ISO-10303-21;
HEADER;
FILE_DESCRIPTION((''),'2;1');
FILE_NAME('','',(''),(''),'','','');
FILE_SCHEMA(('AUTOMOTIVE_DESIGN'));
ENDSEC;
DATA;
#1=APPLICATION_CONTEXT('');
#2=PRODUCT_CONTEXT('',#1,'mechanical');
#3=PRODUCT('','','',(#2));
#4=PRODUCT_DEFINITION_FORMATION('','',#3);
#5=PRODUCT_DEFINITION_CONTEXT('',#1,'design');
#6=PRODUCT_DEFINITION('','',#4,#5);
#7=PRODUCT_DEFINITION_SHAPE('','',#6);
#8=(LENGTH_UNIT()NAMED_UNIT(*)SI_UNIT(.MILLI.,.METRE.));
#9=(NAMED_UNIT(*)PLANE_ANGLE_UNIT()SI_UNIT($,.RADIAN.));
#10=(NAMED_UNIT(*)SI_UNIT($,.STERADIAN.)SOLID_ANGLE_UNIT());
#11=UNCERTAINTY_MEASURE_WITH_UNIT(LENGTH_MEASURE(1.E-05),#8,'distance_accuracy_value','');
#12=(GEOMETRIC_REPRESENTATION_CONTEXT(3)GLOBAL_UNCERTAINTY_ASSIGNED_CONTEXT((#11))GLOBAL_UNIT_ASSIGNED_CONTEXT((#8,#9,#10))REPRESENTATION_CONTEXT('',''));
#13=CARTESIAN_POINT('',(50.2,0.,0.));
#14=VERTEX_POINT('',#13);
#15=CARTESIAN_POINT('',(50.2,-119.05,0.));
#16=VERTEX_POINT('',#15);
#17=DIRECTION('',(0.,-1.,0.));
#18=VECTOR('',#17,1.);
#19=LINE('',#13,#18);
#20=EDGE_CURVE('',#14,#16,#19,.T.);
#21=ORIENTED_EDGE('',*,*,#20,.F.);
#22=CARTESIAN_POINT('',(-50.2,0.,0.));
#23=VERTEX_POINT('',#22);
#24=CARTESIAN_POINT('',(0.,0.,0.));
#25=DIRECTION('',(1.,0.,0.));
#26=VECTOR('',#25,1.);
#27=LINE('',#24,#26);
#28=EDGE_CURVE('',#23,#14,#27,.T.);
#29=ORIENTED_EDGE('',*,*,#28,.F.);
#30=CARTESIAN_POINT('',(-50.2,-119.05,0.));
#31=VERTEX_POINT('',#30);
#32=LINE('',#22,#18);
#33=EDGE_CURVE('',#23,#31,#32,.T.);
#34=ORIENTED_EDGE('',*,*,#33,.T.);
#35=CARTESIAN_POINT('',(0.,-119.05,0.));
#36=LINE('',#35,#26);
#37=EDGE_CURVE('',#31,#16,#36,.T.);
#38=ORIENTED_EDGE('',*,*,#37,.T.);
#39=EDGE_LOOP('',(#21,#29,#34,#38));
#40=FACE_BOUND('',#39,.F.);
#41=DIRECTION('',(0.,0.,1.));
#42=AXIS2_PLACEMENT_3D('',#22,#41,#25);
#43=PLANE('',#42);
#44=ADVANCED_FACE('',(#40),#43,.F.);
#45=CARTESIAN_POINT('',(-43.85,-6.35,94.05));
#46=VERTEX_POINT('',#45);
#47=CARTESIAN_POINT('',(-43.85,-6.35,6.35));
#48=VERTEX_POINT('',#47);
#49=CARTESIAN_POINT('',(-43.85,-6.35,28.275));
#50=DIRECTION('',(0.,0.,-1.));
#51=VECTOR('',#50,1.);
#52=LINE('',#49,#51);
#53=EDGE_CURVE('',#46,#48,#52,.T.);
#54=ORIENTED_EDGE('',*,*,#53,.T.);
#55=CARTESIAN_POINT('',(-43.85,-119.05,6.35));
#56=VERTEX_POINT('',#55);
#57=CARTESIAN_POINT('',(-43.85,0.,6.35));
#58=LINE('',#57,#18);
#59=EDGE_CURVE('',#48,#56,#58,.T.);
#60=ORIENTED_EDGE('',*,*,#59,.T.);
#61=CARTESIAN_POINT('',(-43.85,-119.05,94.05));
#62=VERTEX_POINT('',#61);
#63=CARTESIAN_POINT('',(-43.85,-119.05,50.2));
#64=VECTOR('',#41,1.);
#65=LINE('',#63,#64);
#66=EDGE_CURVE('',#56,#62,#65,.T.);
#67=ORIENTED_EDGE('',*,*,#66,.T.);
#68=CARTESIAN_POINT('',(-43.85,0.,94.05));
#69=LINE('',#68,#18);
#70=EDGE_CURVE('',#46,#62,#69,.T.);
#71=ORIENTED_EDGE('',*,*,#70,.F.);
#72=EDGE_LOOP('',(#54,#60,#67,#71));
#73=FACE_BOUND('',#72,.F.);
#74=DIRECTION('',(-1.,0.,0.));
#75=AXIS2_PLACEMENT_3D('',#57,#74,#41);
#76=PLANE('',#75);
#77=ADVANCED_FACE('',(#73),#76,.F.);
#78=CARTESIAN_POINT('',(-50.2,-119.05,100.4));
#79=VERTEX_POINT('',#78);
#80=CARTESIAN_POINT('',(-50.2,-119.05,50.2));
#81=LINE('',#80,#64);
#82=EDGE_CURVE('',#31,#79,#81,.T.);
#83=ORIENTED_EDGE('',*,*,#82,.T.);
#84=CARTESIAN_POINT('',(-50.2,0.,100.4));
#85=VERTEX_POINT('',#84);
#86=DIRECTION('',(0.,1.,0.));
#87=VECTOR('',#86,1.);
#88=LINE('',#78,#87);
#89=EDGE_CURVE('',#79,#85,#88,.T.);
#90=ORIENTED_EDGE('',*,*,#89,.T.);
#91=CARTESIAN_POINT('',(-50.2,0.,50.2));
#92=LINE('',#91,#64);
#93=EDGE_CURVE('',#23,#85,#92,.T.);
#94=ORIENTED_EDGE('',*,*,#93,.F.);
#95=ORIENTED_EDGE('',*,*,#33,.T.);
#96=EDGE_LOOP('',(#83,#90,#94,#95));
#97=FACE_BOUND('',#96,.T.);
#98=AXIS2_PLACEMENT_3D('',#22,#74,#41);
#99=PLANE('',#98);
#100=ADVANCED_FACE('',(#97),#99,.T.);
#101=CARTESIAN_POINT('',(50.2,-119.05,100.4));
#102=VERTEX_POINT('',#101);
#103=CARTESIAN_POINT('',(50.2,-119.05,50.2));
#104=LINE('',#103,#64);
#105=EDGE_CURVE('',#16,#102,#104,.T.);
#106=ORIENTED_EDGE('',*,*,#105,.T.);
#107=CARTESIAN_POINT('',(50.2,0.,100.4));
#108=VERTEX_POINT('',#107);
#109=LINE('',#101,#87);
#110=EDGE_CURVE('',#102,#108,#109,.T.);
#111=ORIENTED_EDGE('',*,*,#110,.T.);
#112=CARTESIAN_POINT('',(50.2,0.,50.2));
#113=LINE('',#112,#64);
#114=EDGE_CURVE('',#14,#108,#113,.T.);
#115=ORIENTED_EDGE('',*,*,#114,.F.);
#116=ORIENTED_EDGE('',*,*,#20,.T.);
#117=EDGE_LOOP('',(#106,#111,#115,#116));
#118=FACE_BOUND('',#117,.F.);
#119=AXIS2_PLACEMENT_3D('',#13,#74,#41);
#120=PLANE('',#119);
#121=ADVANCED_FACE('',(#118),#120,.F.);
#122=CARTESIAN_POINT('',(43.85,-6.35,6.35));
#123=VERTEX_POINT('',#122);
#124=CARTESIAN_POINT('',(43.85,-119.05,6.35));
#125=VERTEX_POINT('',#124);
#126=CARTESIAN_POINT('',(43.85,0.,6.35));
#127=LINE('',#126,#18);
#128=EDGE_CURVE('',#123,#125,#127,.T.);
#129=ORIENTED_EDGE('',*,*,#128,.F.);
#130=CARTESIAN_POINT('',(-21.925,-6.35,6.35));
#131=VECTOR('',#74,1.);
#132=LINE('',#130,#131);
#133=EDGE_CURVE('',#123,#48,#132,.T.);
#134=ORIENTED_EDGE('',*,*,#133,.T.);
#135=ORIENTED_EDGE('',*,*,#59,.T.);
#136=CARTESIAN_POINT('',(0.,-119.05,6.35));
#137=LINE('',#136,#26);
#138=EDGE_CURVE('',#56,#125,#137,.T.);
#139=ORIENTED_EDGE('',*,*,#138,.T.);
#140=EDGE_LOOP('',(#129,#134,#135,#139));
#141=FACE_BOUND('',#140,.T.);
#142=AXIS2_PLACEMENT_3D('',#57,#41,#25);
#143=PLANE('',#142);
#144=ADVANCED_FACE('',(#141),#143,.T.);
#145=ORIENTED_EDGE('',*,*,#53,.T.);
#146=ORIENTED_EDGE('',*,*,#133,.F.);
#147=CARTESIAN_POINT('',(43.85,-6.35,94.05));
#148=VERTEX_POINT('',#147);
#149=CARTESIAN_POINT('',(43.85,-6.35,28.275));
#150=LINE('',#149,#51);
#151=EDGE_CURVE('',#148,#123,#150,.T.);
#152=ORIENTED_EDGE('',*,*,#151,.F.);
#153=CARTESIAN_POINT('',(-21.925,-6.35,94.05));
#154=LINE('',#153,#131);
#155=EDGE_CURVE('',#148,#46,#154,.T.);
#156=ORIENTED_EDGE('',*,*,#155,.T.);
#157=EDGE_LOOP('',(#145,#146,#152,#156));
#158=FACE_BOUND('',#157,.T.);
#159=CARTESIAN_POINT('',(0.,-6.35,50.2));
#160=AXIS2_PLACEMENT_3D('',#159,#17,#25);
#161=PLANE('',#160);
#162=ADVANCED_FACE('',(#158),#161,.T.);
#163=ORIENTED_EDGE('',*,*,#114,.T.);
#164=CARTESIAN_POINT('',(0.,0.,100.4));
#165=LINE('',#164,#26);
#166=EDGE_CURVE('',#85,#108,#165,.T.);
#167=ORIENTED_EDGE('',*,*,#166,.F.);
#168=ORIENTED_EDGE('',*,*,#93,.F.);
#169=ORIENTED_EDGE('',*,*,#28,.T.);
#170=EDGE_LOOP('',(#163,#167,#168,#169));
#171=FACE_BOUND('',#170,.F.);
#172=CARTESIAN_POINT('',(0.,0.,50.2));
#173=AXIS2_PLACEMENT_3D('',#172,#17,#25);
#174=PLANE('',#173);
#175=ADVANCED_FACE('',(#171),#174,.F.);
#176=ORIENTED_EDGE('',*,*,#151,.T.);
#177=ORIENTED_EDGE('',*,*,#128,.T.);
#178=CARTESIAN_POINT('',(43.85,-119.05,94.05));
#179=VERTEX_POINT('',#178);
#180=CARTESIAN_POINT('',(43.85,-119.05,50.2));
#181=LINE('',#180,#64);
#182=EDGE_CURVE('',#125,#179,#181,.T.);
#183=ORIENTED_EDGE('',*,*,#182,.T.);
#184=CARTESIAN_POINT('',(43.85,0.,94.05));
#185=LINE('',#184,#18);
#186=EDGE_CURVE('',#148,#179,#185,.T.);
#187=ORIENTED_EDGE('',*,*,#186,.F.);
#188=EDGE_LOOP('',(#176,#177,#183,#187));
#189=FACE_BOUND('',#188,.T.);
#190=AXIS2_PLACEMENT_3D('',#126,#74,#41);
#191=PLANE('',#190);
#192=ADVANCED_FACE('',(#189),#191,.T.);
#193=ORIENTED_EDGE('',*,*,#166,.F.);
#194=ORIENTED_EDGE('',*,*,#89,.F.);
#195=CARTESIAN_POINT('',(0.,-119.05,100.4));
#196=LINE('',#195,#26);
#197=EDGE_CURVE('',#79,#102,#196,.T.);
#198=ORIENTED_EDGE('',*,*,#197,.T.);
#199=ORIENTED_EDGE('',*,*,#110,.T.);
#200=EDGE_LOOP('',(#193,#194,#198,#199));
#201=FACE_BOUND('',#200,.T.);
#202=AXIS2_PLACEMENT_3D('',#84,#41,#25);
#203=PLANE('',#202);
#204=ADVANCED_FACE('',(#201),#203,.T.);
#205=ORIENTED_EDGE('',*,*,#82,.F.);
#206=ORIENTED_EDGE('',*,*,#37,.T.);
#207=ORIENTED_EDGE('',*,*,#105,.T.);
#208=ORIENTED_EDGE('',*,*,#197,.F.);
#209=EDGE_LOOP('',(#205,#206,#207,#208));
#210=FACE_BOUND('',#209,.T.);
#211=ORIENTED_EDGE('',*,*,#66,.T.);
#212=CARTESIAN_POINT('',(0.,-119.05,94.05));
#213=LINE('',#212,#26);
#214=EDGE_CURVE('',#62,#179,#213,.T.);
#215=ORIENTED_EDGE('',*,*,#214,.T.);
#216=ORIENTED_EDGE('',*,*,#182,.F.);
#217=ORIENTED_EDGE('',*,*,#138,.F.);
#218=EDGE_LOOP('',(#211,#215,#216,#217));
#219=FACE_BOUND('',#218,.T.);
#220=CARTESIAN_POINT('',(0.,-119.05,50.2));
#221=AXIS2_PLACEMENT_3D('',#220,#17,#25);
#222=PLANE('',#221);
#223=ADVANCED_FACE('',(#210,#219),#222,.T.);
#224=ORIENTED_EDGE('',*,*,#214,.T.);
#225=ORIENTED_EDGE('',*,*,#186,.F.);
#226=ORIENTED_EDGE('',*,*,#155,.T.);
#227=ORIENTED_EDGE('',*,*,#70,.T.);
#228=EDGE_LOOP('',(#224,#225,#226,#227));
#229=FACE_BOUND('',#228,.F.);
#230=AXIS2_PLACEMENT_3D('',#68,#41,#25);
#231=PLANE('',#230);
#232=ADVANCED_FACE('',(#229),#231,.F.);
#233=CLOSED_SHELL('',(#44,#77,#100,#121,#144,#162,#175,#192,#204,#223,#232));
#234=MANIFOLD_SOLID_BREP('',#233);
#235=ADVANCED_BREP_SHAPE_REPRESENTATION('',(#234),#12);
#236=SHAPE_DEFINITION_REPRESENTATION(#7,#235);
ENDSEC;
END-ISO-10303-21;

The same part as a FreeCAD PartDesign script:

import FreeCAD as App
import Part
import Sketcher
from FreeCAD import Vector

doc = App.newDocument("Part")
body = doc.addObject("PartDesign::Body", "Body")

sketch1 = body.newObject("Sketcher::SketchObject", "Sketch")
sketch1.AttachmentSupport = (doc.getObject("XZ_Plane"), [""])
sketch1.MapMode = "FlatFace"
sketch1.addGeometry([
    Part.LineSegment(Vector(-50, 100, 0), Vector(-50, 0, 0)),
    Part.LineSegment(Vector(-50, 0, 0), Vector(50, 0, 0)),
    Part.LineSegment(Vector(50, 0, 0), Vector(50, 100, 0)),
    Part.LineSegment(Vector(50, 100, 0), Vector(-50, 100, 0)),
], False)
sketch1.addConstraint([
    Sketcher.Constraint("Coincident", 0, 2, 1, 1),
    Sketcher.Constraint("Coincident", 1, 2, 2, 1),
    Sketcher.Constraint("Coincident", 2, 2, 3, 1),
    Sketcher.Constraint("Coincident", 3, 2, 0, 1),
    Sketcher.Constraint("Vertical", 0),
    Sketcher.Constraint("Horizontal", 1),
    Sketcher.Constraint("Vertical", 2),
    Sketcher.Constraint("Horizontal", 3),
    Sketcher.Constraint("Symmetric", 0, 2, 1, 2, -1, 1),
    Sketcher.Constraint("Equal", 3, 0),
    Sketcher.Constraint("DistanceX", 1, 1, 1, 2, 100.4),
])
pad1 = body.newObject("PartDesign::Pad", "Pad")
pad1.Profile = sketch1
pad1.Length = 6.35

sketch2 = body.newObject("Sketcher::SketchObject", "Sketch001")
sketch2.AttachmentSupport = (doc.getObject("XZ_Plane"), [""])
sketch2.MapMode = "FlatFace"
sketch2.addGeometry([
    Part.LineSegment(Vector(-50, 100, 0), Vector(-50, 0, 0)),
    Part.LineSegment(Vector(-50, 0, 0), Vector(50, 0, 0)),
    Part.LineSegment(Vector(50, 0, 0), Vector(50, 100, 0)),
    Part.LineSegment(Vector(50, 100, 0), Vector(-50, 100, 0)),
    Part.LineSegment(Vector(44, 6, 0), Vector(-44, 6, 0)),
    Part.LineSegment(Vector(-44, 6, 0), Vector(-44, 94, 0)),
    Part.LineSegment(Vector(-44, 94, 0), Vector(44, 94, 0)),
    Part.LineSegment(Vector(44, 94, 0), Vector(44, 6, 0)),
], False)
sketch2.addConstraint([
    Sketcher.Constraint("Coincident", 0, 2, 1, 1),
    Sketcher.Constraint("Coincident", 1, 2, 2, 1),
    Sketcher.Constraint("Coincident", 2, 2, 3, 1),
    Sketcher.Constraint("Coincident", 3, 2, 0, 1),
    Sketcher.Constraint("Coincident", 4, 2, 5, 1),
    Sketcher.Constraint("Coincident", 5, 2, 6, 1),
    Sketcher.Constraint("Coincident", 6, 2, 7, 1),
    Sketcher.Constraint("Coincident", 7, 2, 4, 1),
    Sketcher.Constraint("Vertical", 0),
    Sketcher.Constraint("Horizontal", 1),
    Sketcher.Constraint("Vertical", 2),
    Sketcher.Constraint("Horizontal", 3),
    Sketcher.Constraint("Horizontal", 4),
    Sketcher.Constraint("Vertical", 5),
    Sketcher.Constraint("Horizontal", 6),
    Sketcher.Constraint("Vertical", 7),
    Sketcher.Constraint("Symmetric", 0, 2, 1, 2, -1, 1),
    Sketcher.Constraint("Equal", 3, 0),
    Sketcher.Constraint("Equal", 6, 5),
    Sketcher.Constraint("DistanceX", 1, 1, 1, 2, 100.4),
    Sketcher.Constraint("DistanceX", 4, 2, 4, 1, 87.7),
    Sketcher.Constraint("DistanceX", 4, 2, -1, 1, 43.85),
    Sketcher.Constraint("DistanceY", -1, 1, 4, 2, 6.35),
])
pad2 = body.newObject("PartDesign::Pad", "Pad001")
pad2.Profile = sketch2
pad2.Length = 119.05

doc.recompute()
